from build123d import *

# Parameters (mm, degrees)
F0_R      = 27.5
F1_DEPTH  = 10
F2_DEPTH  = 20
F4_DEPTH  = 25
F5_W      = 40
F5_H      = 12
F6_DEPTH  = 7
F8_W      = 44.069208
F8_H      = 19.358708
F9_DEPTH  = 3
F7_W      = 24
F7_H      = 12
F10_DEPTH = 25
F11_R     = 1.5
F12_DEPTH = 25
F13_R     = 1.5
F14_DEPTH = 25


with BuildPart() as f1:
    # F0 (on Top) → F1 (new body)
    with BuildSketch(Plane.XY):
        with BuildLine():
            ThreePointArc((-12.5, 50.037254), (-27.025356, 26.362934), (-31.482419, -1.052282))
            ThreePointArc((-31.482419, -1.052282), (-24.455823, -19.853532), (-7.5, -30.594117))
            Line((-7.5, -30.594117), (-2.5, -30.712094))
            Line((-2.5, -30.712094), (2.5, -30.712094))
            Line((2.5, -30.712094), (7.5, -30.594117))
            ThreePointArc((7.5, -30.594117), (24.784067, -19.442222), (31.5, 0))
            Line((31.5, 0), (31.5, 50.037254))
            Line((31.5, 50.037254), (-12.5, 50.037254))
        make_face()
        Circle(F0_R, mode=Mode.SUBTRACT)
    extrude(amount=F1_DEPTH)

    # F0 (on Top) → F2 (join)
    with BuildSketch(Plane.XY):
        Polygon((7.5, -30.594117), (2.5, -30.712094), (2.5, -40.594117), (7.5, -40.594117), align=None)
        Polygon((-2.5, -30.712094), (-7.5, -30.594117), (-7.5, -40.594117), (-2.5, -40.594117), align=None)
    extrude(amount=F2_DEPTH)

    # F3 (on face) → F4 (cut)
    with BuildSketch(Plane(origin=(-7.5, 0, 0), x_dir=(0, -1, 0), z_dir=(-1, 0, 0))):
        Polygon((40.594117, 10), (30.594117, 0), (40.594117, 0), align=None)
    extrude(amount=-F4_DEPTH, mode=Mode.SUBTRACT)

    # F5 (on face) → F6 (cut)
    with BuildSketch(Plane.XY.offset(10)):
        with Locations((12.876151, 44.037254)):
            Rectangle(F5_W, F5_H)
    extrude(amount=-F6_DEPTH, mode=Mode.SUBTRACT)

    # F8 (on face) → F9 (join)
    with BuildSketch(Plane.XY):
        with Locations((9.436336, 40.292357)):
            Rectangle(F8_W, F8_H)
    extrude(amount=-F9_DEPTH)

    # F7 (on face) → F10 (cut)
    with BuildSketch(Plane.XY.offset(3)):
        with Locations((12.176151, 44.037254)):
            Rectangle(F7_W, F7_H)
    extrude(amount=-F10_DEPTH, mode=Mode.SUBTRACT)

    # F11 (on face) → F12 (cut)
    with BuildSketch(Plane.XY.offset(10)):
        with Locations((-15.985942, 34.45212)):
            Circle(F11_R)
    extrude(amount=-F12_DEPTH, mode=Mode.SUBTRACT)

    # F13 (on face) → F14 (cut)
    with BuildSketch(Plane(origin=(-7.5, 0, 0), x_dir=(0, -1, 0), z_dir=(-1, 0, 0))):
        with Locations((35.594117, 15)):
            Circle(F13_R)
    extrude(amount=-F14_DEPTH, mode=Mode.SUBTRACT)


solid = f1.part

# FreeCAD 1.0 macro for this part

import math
import FreeCAD as App
import Part
import Sketcher

V = App.Vector
Q = App.Units.Quantity


def add_polygon(sketch, points):
    """Adds a closed chain of lines whose ends are joined by coincident constraints."""
    first, n = sketch.GeometryCount, len(points)
    for a, b in zip(points, points[1:] + points[:1]):
        sketch.addGeometry(Part.LineSegment(App.Vector(*a, 0), App.Vector(*b, 0)), False)
    for i in range(n):
        sketch.addConstraint(Sketcher.Constraint("Coincident", first + i, 2, first + (i + 1) % n, 1))

doc = App.newDocument("Part")
body = doc.addObject("PartDesign::Body", "Body")

sketch1 = doc.addObject("Sketcher::SketchObject", "Sketch")
body.addObject(sketch1)
sketch1.AttachmentSupport = (doc.XY_Plane, [""])
sketch1.MapMode = "FlatFace"
sketch1.addGeometry(Part.ArcOfCircle(Part.Circle(V(40, 1, 0), V(0, 0, 1), 72), math.radians(137), math.radians(182)), False)
sketch1.addGeometry(Part.ArcOfCircle(Part.Circle(V(0, 0, 0), V(0, 0, 1), 31), math.radians(-178), math.radians(-104)), False)
sketch1.addGeometry(Part.LineSegment(V(-8, -31, 0), V(-2, -31, 0)), False)
sketch1.addGeometry(Part.LineSegment(V(-2, -31, 0), V(2, -31, 0)), False)
sketch1.addGeometry(Part.LineSegment(V(2, -31, 0), V(8, -31, 0)), False)
sketch1.addGeometry(Part.ArcOfCircle(Part.Circle(V(0, 0, 0), V(0, 0, 1), 32), math.radians(-76), math.radians(0)), False)
sketch1.addGeometry(Part.LineSegment(V(32, 0, 0), V(32, 50, 0)), False)
sketch1.addGeometry(Part.LineSegment(V(32, 50, 0), V(-12, 50, 0)), False)
sketch1.addGeometry(Part.Circle(V(0, 0, 0), V(0, 0, 1), 28), False)
sketch1.addConstraint(Sketcher.Constraint("Tangent", 0, 2, 1, 1))
sketch1.addConstraint(Sketcher.Constraint("Coincident", 1, 2, 2, 1))
sketch1.addConstraint(Sketcher.Constraint("Coincident", 2, 2, 3, 1))
sketch1.addConstraint(Sketcher.Constraint("Coincident", 3, 2, 4, 1))
sketch1.addConstraint(Sketcher.Constraint("Coincident", 4, 2, 5, 1))
sketch1.addConstraint(Sketcher.Constraint("Tangent", 5, 2, 6, 1))
sketch1.addConstraint(Sketcher.Constraint("Coincident", 6, 2, 7, 1))
sketch1.addConstraint(Sketcher.Constraint("Coincident", 7, 2, 0, 1))
sketch1.addConstraint(Sketcher.Constraint("Horizontal", 3))
sketch1.addConstraint(Sketcher.Constraint("Vertical", 6))
sketch1.addConstraint(Sketcher.Constraint("Horizontal", 7))
sketch1.addConstraint(Sketcher.Constraint("Coincident", 1, 3, -1, 1))
sketch1.addConstraint(Sketcher.Constraint("Coincident", 5, 3, -1, 1))
sketch1.addConstraint(Sketcher.Constraint("Coincident", 8, 3, -1, 1))
sketch1.addConstraint(Sketcher.Constraint("Symmetric", 1, 2, 4, 2, -2))
sketch1.addConstraint(Sketcher.Constraint("Equal", 2, 4))
sketch1.addConstraint(Sketcher.Constraint("Diameter", 8, Q("55 mm")))
sketch1.addConstraint(Sketcher.Constraint("Radius", 1, Q("31.499999 mm")))
sketch1.addConstraint(Sketcher.Constraint("DistanceX", 3, 1, 3, 2, Q("5 mm")))
sketch1.addConstraint(Sketcher.Constraint("DistanceX", 7, 2, 7, 1, Q("44 mm")))
sketch1.addConstraint(Sketcher.Constraint("DistanceX", 1, 2, 2, 2, Q("5 mm")))
sketch1.addConstraint(Sketcher.Constraint("Radius", 0, Q("71.825124 mm")))
sketch1.addConstraint(Sketcher.Constraint("Distance", 2, Q("5.001392 mm")))
sketch1.addConstraint(Sketcher.Constraint("DistanceY", 6, 1, 6, 2, Q("50.037254 mm")))
pad1 = doc.addObject("PartDesign::Pad", "Pad")
body.addObject(pad1)
pad1.Profile = sketch1
pad1.Length = 10

sketch2 = doc.addObject("Sketcher::SketchObject", "Sketch001")
body.addObject(sketch2)
sketch2.AttachmentSupport = (doc.XY_Plane, [""])
sketch2.MapMode = "FlatFace"
add_polygon(sketch2, [(7.5, -30.594117), (2.5, -30.712094), (2.5, -40.594117), (7.5, -40.594117)])
add_polygon(sketch2, [(-2.5, -30.712094), (-7.5, -30.594117), (-7.5, -40.594117), (-2.5, -40.594117)])
sketch2.addConstraint(Sketcher.Constraint("Vertical", 1))
sketch2.addConstraint(Sketcher.Constraint("Horizontal", 2))
sketch2.addConstraint(Sketcher.Constraint("Vertical", 3))
sketch2.addConstraint(Sketcher.Constraint("Vertical", 5))
sketch2.addConstraint(Sketcher.Constraint("Horizontal", 6))
sketch2.addConstraint(Sketcher.Constraint("Vertical", 7))
sketch2.addConstraint(Sketcher.Constraint("Symmetric", 3, 2, 4, 2, -2))
sketch2.addConstraint(Sketcher.Constraint("Symmetric", 1, 2, 6, 2, -2))
sketch2.addConstraint(Sketcher.Constraint("Horizontal", 0, 2, 7, 2))
sketch2.addConstraint(Sketcher.Constraint("DistanceX", 2, 1, 2, 2, Q("5 mm")))
sketch2.addConstraint(Sketcher.Constraint("DistanceY", 3, 1, 3, 2, Q("10 mm")))
sketch2.addConstraint(Sketcher.Constraint("DistanceX", 4, 2, 0, 2, Q("10 mm")))
sketch2.addConstraint(Sketcher.Constraint("Distance", 0, Q("5.001392 mm")))
sketch2.addConstraint(Sketcher.Constraint("DistanceY", 0, 2, -1, 1, Q("30.712094 mm")))
pad2 = doc.addObject("PartDesign::Pad", "Pad001")
body.addObject(pad2)
pad2.Profile = sketch2
pad2.Length = 20

sketch3 = doc.addObject("Sketcher::SketchObject", "Sketch002")
body.addObject(sketch3)
sketch3.AttachmentSupport = (doc.YZ_Plane, [""])
sketch3.MapMode = "FlatFace"
sketch3.AttachmentOffset = App.Placement(V(0, 0, -7.5), App.Rotation())
add_polygon(sketch3, [(-41, 10), (-31, 0), (-41, 0)])
sketch3.addConstraint(Sketcher.Constraint("Horizontal", 1))
sketch3.addConstraint(Sketcher.Constraint("Vertical", 2))
sketch3.addConstraint(Sketcher.Constraint("PointOnObject", 0, 2, -1))
sketch3.addConstraint(Sketcher.Constraint("Equal", 1, 2))
sketch3.addConstraint(Sketcher.Constraint("DistanceX", 1, 2, 1, 1, Q("10 mm")))
sketch3.addConstraint(Sketcher.Constraint("DistanceX", 0, 2, -1, 1, Q("30.594117 mm")))
pocket1 = doc.addObject("PartDesign::Pocket", "Pocket")
body.addObject(pocket1)
pocket1.Profile = sketch3
pocket1.Length = 25
pocket1.Reversed = True

sketch4 = doc.addObject("Sketcher::SketchObject", "Sketch003")
body.addObject(sketch4)
sketch4.AttachmentSupport = (doc.XY_Plane, [""])
sketch4.MapMode = "FlatFace"
sketch4.AttachmentOffset = App.Placement(V(0, 0, 10), App.Rotation())
add_polygon(sketch4, [(-7, 50), (-7, 38), (33, 38), (33, 50)])
sketch4.addConstraint(Sketcher.Constraint("Vertical", 0))
sketch4.addConstraint(Sketcher.Constraint("Horizontal", 1))
sketch4.addConstraint(Sketcher.Constraint("Vertical", 2))
sketch4.addConstraint(Sketcher.Constraint("Horizontal", 3))
sketch4.addConstraint(Sketcher.Constraint("DistanceX", 1, 1, 1, 2, Q("40 mm")))
sketch4.addConstraint(Sketcher.Constraint("DistanceY", 0, 2, 0, 1, Q("12 mm")))
sketch4.addConstraint(Sketcher.Constraint("DistanceX", 0, 2, -1, 1, Q("7.123849 mm")))
sketch4.addConstraint(Sketcher.Constraint("DistanceY", -1, 1, 0, 2, Q("38.037254 mm")))
pocket2 = doc.addObject("PartDesign::Pocket", "Pocket001")
body.addObject(pocket2)
pocket2.Profile = sketch4
pocket2.Length = 7

sketch5 = doc.addObject("Sketcher::SketchObject", "Sketch004")
body.addObject(sketch5)
sketch5.AttachmentSupport = (doc.XY_Plane, [""])
sketch5.MapMode = "FlatFace"
add_polygon(sketch5, [(-13, 50), (-13, 31), (31, 31), (31, 50)])
sketch5.addConstraint(Sketcher.Constraint("Vertical", 0))
sketch5.addConstraint(Sketcher.Constraint("Horizontal", 1))
sketch5.addConstraint(Sketcher.Constraint("Vertical", 2))
sketch5.addConstraint(Sketcher.Constraint("Horizontal", 3))
sketch5.addConstraint(Sketcher.Constraint("DistanceY", 0, 2, 0, 1, Q("19.358708 mm")))
sketch5.addConstraint(Sketcher.Constraint("DistanceX", 1, 1, 1, 2, Q("44.069208 mm")))
sketch5.addConstraint(Sketcher.Constraint("DistanceX", -1, 1, 1, 2, Q("31.47094 mm")))
sketch5.addConstraint(Sketcher.Constraint("DistanceY", -1, 1, 2, 2, Q("49.971711 mm")))
pad3 = doc.addObject("PartDesign::Pad", "Pad002")
body.addObject(pad3)
pad3.Profile = sketch5
pad3.Length = 3
pad3.Reversed = True

sketch6 = doc.addObject("Sketcher::SketchObject", "Sketch005")
body.addObject(sketch6)
sketch6.AttachmentSupport = (doc.XY_Plane, [""])
sketch6.MapMode = "FlatFace"
sketch6.AttachmentOffset = App.Placement(V(0, 0, 3), App.Rotation())
add_polygon(sketch6, [(0, 50), (0, 38), (24, 38), (24, 50)])
sketch6.addConstraint(Sketcher.Constraint("Vertical", 0))
sketch6.addConstraint(Sketcher.Constraint("Horizontal", 1))
sketch6.addConstraint(Sketcher.Constraint("Vertical", 2))
sketch6.addConstraint(Sketcher.Constraint("Horizontal", 3))
sketch6.addConstraint(Sketcher.Constraint("DistanceX", 1, 1, 1, 2, Q("24 mm")))
sketch6.addConstraint(Sketcher.Constraint("DistanceY", 0, 2, 0, 1, Q("12 mm")))
sketch6.addConstraint(Sketcher.Constraint("DistanceX", -1, 1, 0, 2, Q("0.176151 mm")))
sketch6.addConstraint(Sketcher.Constraint("DistanceY", -1, 1, 0, 2, Q("38.037254 mm")))
pocket3 = doc.addObject("PartDesign::Pocket", "Pocket002")
body.addObject(pocket3)
pocket3.Profile = sketch6
pocket3.Length = 25

sketch7 = doc.addObject("Sketcher::SketchObject", "Sketch006")
body.addObject(sketch7)
sketch7.AttachmentSupport = (doc.XY_Plane, [""])
sketch7.MapMode = "FlatFace"
sketch7.AttachmentOffset = App.Placement(V(0, 0, 10), App.Rotation())
sketch7.addGeometry(Part.Circle(V(-16, 34.5, 0), V(0, 0, 1), 1.5), False)
sketch7.addConstraint(Sketcher.Constraint("Diameter", 0, Q("3 mm")))
sketch7.addConstraint(Sketcher.Constraint("DistanceY", -1, 1, 0, 3, Q("34.45212 mm")))
sketch7.addConstraint(Sketcher.Constraint("DistanceX", 0, 3, -1, 1, Q("15.985942 mm")))
pocket4 = doc.addObject("PartDesign::Pocket", "Pocket003")
body.addObject(pocket4)
pocket4.Profile = sketch7
pocket4.Length = 25

sketch8 = doc.addObject("Sketcher::SketchObject", "Sketch007")
body.addObject(sketch8)
sketch8.AttachmentSupport = (doc.YZ_Plane, [""])
sketch8.MapMode = "FlatFace"
sketch8.AttachmentOffset = App.Placement(V(0, 0, -7.5), App.Rotation())
sketch8.addGeometry(Part.Circle(V(-35.6, 15, 0), V(0, 0, 1), 1.5), False)
sketch8.addConstraint(Sketcher.Constraint("Diameter", 0, Q("3 mm")))
sketch8.addConstraint(Sketcher.Constraint("DistanceY", -1, 1, 0, 3, Q("15 mm")))
sketch8.addConstraint(Sketcher.Constraint("DistanceX", 0, 3, -1, 1, Q("35.594117 mm")))
pocket5 = doc.addObject("PartDesign::Pocket", "Pocket004")
body.addObject(pocket5)
pocket5.Profile = sketch8
pocket5.Length = 25
pocket5.Reversed = True

doc.recompute()
